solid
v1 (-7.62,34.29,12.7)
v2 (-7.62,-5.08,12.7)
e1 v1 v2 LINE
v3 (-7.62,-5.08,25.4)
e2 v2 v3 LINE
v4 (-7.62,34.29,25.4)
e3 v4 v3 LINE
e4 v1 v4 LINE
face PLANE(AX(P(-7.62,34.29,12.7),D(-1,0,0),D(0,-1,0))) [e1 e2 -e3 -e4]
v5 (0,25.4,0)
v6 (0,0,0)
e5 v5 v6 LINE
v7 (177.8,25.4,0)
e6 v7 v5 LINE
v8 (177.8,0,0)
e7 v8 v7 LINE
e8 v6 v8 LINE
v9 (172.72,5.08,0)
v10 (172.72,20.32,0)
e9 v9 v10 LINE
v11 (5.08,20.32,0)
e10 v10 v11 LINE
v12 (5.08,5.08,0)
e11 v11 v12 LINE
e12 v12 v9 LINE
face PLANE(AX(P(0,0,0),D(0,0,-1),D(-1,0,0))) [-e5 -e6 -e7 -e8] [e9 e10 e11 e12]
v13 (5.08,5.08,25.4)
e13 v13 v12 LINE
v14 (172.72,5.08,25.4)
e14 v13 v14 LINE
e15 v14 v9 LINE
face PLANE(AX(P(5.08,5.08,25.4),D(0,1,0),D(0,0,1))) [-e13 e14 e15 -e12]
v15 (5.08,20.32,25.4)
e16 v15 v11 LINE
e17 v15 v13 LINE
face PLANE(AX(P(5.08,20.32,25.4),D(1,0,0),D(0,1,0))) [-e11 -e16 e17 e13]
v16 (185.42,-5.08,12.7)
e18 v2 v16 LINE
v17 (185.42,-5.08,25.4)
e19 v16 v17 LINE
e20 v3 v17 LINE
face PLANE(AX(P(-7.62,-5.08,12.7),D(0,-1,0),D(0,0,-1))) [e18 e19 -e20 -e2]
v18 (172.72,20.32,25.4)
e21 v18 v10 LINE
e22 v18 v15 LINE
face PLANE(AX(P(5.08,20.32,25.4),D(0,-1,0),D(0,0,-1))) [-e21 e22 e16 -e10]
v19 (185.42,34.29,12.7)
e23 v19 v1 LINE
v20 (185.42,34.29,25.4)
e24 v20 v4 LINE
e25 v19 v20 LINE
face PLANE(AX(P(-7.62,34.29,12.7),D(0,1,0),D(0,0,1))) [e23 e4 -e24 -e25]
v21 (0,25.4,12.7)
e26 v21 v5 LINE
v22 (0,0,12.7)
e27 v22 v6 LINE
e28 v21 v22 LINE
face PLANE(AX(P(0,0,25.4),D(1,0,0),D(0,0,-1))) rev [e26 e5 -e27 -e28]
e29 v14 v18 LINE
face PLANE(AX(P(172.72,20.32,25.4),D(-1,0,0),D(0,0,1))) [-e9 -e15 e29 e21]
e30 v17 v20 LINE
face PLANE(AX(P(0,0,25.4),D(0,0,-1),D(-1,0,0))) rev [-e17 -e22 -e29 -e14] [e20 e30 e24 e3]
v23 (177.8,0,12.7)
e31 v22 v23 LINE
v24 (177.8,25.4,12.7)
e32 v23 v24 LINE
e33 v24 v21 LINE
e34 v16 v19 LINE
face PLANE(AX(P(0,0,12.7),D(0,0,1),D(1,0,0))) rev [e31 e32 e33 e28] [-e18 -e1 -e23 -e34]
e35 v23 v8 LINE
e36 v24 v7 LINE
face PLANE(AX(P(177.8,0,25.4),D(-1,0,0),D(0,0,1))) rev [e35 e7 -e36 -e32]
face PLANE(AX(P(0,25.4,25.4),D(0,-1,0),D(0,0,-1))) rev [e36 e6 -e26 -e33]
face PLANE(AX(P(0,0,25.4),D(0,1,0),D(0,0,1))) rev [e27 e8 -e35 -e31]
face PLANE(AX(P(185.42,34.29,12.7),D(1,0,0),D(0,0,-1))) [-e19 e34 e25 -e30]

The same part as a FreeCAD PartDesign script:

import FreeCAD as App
import Part
import Sketcher

V = App.Vector
Q = App.Units.Quantity


def add_polygon(sketch, points):
    """Adds a closed chain of lines whose ends are joined by coincident constraints."""
    first, n = sketch.GeometryCount, len(points)
    for a, b in zip(points, points[1:] + points[:1]):
        sketch.addGeometry(Part.LineSegment(App.Vector(*a, 0), App.Vector(*b, 0)), False)
    for i in range(n):
        sketch.addConstraint(Sketcher.Constraint("Coincident", first + i, 2, first + (i + 1) % n, 1))

doc = App.newDocument("Part")
body = doc.addObject("PartDesign::Body", "Body")

# Sketch on XY plane
sketch1 = body.newObject("Sketcher::SketchObject", "Sketch")
sketch1.AttachmentSupport = (doc.getObject("XY_Plane"), [""])
sketch1.MapMode = "FlatFace"
add_polygon(sketch1, [(0, 25), (0, 0), (178, 0), (178, 25)])  # lines 0-3
add_polygon(sketch1, [(173, 5), (5, 5), (5, 20), (173, 20)])  # lines 4-7
sketch1.addConstraint(Sketcher.Constraint("Vertical", 0))
sketch1.addConstraint(Sketcher.Constraint("Horizontal", 1))
sketch1.addConstraint(Sketcher.Constraint("Vertical", 2))
sketch1.addConstraint(Sketcher.Constraint("Horizontal", 3))
sketch1.addConstraint(Sketcher.Constraint("Horizontal", 4))
sketch1.addConstraint(Sketcher.Constraint("Vertical", 5))
sketch1.addConstraint(Sketcher.Constraint("Horizontal", 6))
sketch1.addConstraint(Sketcher.Constraint("Vertical", 7))
sketch1.addConstraint(Sketcher.Constraint("Coincident", 0, 2, -1, 1))
sketch1.addConstraint(Sketcher.Constraint("DistanceX", 1, 1, 1, 2, Q("7 in")))
sketch1.addConstraint(Sketcher.Constraint("DistanceY", 0, 2, 0, 1, Q("1 in")))
sketch1.addConstraint(Sketcher.Constraint("DistanceX", 4, 2, 4, 1, Q("6.6 in")))
sketch1.addConstraint(Sketcher.Constraint("DistanceY", 5, 1, 5, 2, Q("0.6 in")))
sketch1.addConstraint(Sketcher.Constraint("DistanceX", -1, 1, 4, 2, Q("0.2 in")))
sketch1.addConstraint(Sketcher.Constraint("DistanceY", -1, 1, 4, 2, Q("0.2 in")))
pad1 = body.newObject("PartDesign::Pad", "Pad")
pad1.Profile = sketch1
pad1.Length = Q("1 in")

# Sketch on XY plane
sketch2 = body.newObject("Sketcher::SketchObject", "Sketch001")
sketch2.AttachmentSupport = (doc.getObject("XY_Plane"), [""])
sketch2.MapMode = "FlatFace"
sketch2.AttachmentOffset = App.Placement(V(0, 0, 1 * 25.4), App.Rotation())
add_polygon(sketch2, [(-8, 34), (-8, -5), (185, -5), (185, 34)])  # lines 0-3
add_polygon(sketch2, [(178, 0), (0, 0), (0, 25), (178, 25)])  # lines 4-7
sketch2.addConstraint(Sketcher.Constraint("Vertical", 0))
sketch2.addConstraint(Sketcher.Constraint("Horizontal", 1))
sketch2.addConstraint(Sketcher.Constraint("Vertical", 2))
sketch2.addConstraint(Sketcher.Constraint("Horizontal", 3))
sketch2.addConstraint(Sketcher.Constraint("Horizontal", 4))
sketch2.addConstraint(Sketcher.Constraint("Vertical", 5))
sketch2.addConstraint(Sketcher.Constraint("Horizontal", 6))
sketch2.addConstraint(Sketcher.Constraint("Vertical", 7))
sketch2.addConstraint(Sketcher.Constraint("Coincident", 4, 2, -1, 1))
sketch2.addConstraint(Sketcher.Constraint("DistanceX", 4, 2, 4, 1, Q("7 in")))
sketch2.addConstraint(Sketcher.Constraint("DistanceY", 5, 1, 5, 2, Q("1 in")))
sketch2.addConstraint(Sketcher.Constraint("DistanceX", 1, 1, 1, 2, Q("7.6 in")))
sketch2.addConstraint(Sketcher.Constraint("DistanceY", 0, 2, 0, 1, Q("1.55 in")))
sketch2.addConstraint(Sketcher.Constraint("DistanceX", 0, 2, -1, 1, Q("0.3 in")))
sketch2.addConstraint(Sketcher.Constraint("DistanceY", 0, 2, -1, 1, Q("0.2 in")))
pad2 = body.newObject("PartDesign::Pad", "Pad001")
pad2.Profile = sketch2
pad2.Length = Q("0.5 in")
pad2.Reversed = True

doc.recompute()
